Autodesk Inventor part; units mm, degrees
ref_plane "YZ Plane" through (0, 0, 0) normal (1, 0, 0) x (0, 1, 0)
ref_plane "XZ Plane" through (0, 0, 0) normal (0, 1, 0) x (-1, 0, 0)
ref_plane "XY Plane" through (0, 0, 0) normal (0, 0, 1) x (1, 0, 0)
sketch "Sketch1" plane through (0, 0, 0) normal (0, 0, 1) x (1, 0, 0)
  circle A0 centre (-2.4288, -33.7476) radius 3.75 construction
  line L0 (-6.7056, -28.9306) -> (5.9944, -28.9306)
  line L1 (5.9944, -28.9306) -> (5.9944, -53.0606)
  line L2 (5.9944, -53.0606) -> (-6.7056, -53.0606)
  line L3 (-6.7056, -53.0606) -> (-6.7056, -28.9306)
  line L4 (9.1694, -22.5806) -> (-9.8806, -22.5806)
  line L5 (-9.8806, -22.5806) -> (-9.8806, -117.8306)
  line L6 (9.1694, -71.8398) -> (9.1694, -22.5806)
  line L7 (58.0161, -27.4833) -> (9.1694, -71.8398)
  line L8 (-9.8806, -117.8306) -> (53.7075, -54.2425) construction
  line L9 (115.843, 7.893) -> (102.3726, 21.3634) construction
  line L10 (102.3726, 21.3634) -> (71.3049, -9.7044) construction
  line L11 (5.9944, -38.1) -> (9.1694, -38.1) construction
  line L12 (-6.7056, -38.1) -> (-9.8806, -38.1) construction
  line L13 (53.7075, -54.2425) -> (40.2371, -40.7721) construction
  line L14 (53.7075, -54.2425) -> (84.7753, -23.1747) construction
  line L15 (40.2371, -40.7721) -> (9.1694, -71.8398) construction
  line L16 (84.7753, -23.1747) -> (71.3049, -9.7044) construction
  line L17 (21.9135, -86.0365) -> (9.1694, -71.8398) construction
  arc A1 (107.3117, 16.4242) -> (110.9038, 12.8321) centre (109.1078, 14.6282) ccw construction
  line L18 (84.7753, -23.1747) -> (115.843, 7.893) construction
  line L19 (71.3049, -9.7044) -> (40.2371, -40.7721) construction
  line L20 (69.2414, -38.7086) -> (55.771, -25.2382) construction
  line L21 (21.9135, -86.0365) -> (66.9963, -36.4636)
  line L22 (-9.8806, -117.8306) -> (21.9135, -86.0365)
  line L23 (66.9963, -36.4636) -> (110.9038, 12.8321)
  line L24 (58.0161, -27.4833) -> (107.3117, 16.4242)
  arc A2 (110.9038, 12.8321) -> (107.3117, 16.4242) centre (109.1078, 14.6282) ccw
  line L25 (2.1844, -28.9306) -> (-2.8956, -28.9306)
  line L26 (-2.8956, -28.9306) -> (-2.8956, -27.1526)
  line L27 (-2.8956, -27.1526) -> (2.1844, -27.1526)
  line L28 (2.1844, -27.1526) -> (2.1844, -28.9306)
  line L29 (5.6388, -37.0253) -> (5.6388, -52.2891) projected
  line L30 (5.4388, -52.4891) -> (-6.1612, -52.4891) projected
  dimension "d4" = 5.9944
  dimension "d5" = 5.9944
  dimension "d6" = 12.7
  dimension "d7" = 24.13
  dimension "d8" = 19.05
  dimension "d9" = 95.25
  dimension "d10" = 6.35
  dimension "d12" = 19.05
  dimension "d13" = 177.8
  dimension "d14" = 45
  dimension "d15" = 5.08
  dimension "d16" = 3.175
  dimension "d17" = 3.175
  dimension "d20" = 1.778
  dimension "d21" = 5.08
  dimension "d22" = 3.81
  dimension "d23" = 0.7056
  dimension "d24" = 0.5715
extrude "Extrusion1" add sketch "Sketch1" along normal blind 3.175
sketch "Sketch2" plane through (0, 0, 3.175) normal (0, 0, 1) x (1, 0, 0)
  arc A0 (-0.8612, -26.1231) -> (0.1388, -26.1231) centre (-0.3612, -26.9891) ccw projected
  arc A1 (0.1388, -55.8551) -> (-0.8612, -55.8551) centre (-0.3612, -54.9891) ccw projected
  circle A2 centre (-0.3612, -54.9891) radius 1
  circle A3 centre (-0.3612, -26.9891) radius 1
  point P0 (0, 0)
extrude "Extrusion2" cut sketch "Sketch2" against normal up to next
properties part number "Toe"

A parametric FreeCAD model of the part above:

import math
import FreeCAD as App
import Part
import Sketcher

V = App.Vector
Q = App.Units.Quantity


def add_polygon(sketch, points):
    """Adds a closed chain of lines whose ends are joined by coincident constraints."""
    first, n = sketch.GeometryCount, len(points)
    for a, b in zip(points, points[1:] + points[:1]):
        sketch.addGeometry(Part.LineSegment(App.Vector(*a, 0), App.Vector(*b, 0)), False)
    for i in range(n):
        sketch.addConstraint(Sketcher.Constraint("Coincident", first + i, 2, first + (i + 1) % n, 1))

doc = App.newDocument("Part")
body = doc.addObject("PartDesign::Body", "Body")

sketch1 = body.newObject("Sketcher::SketchObject", "Sketch")
sketch1.AttachmentSupport = (doc.getObject("XY_Plane"), [""])
sketch1.MapMode = "FlatFace"
sketch1.addGeometry(Part.LineSegment(V(9.1694, -71.8398, 0), V(9.1694, -22.5806, 0)), False)
sketch1.addGeometry(Part.LineSegment(V(9.1694, -22.5806, 0), V(-9.8806, -22.5806, 0)), False)
sketch1.addGeometry(Part.LineSegment(V(-9.8806, -22.5806, 0), V(-9.8806, -117.8306, 0)), False)
sketch1.addGeometry(Part.LineSegment(V(-9.8806, -117.8306, 0), V(21.9135, -86.0365, 0)), False)
sketch1.addGeometry(Part.LineSegment(V(21.9135, -86.0365, 0), V(66.9963, -36.4636, 0)), False)
sketch1.addGeometry(Part.LineSegment(V(66.9963, -36.4636, 0), V(110.9038, 12.8321, 0)), False)
sketch1.addGeometry(Part.ArcOfCircle(Part.Circle(V(109.1078, 14.6282, 0), V(0, 0, 1), 2.539998), math.radians(-45.001595), math.radians(135.001595)), False)
sketch1.addGeometry(Part.LineSegment(V(107.3117, 16.4242, 0), V(58.0161, -27.4833, 0)), False)
sketch1.addGeometry(Part.LineSegment(V(58.0161, -27.4833, 0), V(9.1694, -71.8398, 0)), False)
add_polygon(sketch1, [(-6.7056, -53.0606), (-6.7056, -28.9306), (-2.8956, -28.9306), (-2.8956, -27.1526), (2.1844, -27.1526), (2.1844, -28.9306), (5.9944, -28.9306), (5.9944, -53.0606)])
sketch1.addConstraint(Sketcher.Constraint("Coincident", 0, 2, 1, 1))
sketch1.addConstraint(Sketcher.Constraint("Coincident", 1, 2, 2, 1))
sketch1.addConstraint(Sketcher.Constraint("Coincident", 2, 2, 3, 1))
sketch1.addConstraint(Sketcher.Constraint("Coincident", 3, 2, 4, 1))
sketch1.addConstraint(Sketcher.Constraint("Coincident", 4, 2, 5, 1))
sketch1.addConstraint(Sketcher.Constraint("Coincident", 5, 2, 6, 1))
sketch1.addConstraint(Sketcher.Constraint("Coincident", 6, 2, 7, 1))
sketch1.addConstraint(Sketcher.Constraint("Coincident", 7, 2, 8, 1))
sketch1.addConstraint(Sketcher.Constraint("Coincident", 8, 2, 0, 1))
sketch1.addConstraint(Sketcher.Constraint("Vertical", 0))
sketch1.addConstraint(Sketcher.Constraint("Horizontal", 1))
sketch1.addConstraint(Sketcher.Constraint("Vertical", 2))
sketch1.addConstraint(Sketcher.Constraint("Vertical", 9))
sketch1.addConstraint(Sketcher.Constraint("Horizontal", 10))
sketch1.addConstraint(Sketcher.Constraint("Vertical", 11))
sketch1.addConstraint(Sketcher.Constraint("Horizontal", 12))
sketch1.addConstraint(Sketcher.Constraint("Vertical", 13))
sketch1.addConstraint(Sketcher.Constraint("Horizontal", 14))
sketch1.addConstraint(Sketcher.Constraint("Vertical", 15))
sketch1.addConstraint(Sketcher.Constraint("Horizontal", 16))
sketch1.addConstraint(Sketcher.Constraint("Horizontal", 10, 2, 13, 2))
sketch1.addConstraint(Sketcher.Constraint("Equal", 10, 14))
sketch1.addConstraint(Sketcher.Constraint("Equal", 5, 7))
sketch1.addConstraint(Sketcher.Constraint("Radius", 6, Q("0.1 in")))
sketch1.addConstraint(Sketcher.Constraint("DistanceX", 12, 1, 12, 2, Q("0.2 in")))
sketch1.addConstraint(Sketcher.Constraint("DistanceX", 16, 2, 16, 1, Q("0.5 in")))
sketch1.addConstraint(Sketcher.Constraint("Angle", 3, Q("45 deg")))
sketch1.addConstraint(Sketcher.Constraint("DistanceX", 1, 2, 1, 1, Q("0.75 in")))
sketch1.addConstraint(Sketcher.Constraint("DistanceY", 2, 2, 2, 1, Q("3.75 in")))
sketch1.addConstraint(Sketcher.Constraint("DistanceY", 9, 1, 9, 2, Q("0.95 in")))
sketch1.addConstraint(Sketcher.Constraint("DistanceY", 11, 1, 11, 2, Q("0.07 in")))
sketch1.addConstraint(Sketcher.Constraint("DistanceY", 9, 2, 1, 2, Q("0.25 in")))
sketch1.addConstraint(Sketcher.Constraint("DistanceX", -1, 1, 14, 2, Q("0.236 in")))
sketch1.addConstraint(Sketcher.Constraint("DistanceX", 1, 2, 9, 2, Q("0.125 in")))
sketch1.addConstraint(Sketcher.Constraint("Distance", 5, Q("2.599 in")))
sketch1.addConstraint(Sketcher.Constraint("DistanceY", 0, 2, -1, 1, Q("0.889 in")))
sketch1.addConstraint(Sketcher.Constraint("DistanceY", 0, 1, 0, 2, 49.2592))
sketch1.addConstraint(Sketcher.Constraint("DistanceX", -1, 1, 5, 2, Q("4.3663 in")))
sketch1.addConstraint(Sketcher.Constraint("DistanceY", -1, 1, 5, 2, Q("0.5052 in")))
sketch1.addConstraint(Sketcher.Constraint("DistanceX", -1, 1, 7, 2, Q("2.2841 in")))
sketch1.addConstraint(Sketcher.Constraint("DistanceY", 4, 2, 6, 3, Q("2.0115 in")))
sketch1.addConstraint(Sketcher.Constraint("DistanceY", 3, 2, 4, 2, Q("1.9517 in")))
sketch1.addConstraint(Sketcher.Constraint("DistanceX", 6, 3, 5, 2, Q("0.0707 in")))
sketch1.addConstraint(Sketcher.Constraint("DistanceY", 6, 3, 6, 2, Q("0.0707 in")))
pad1 = body.newObject("PartDesign::Pad", "Pad")
pad1.Profile = sketch1
pad1.Length = Q("0.125 in")

sketch2 = body.newObject("Sketcher::SketchObject", "Sketch001")
sketch2.AttachmentSupport = (doc.getObject("XY_Plane"), [""])
sketch2.MapMode = "FlatFace"
sketch2.AttachmentOffset = App.Placement(V(0, 0, 0.125 * 25.4), App.Rotation())
sketch2.addGeometry(Part.Circle(V(-0.3612, -26.9891, 0), V(0, 0, 1), 0.999978), False)
sketch2.addGeometry(Part.Circle(V(-0.3612, -54.9891, 0), V(0, 0, 1), 0.999978), False)
sketch2.addConstraint(Sketcher.Constraint("Equal", 0, 1))
sketch2.addConstraint(Sketcher.Constraint("Vertical", 0, 3, 1, 3))
sketch2.addConstraint(Sketcher.Constraint("Diameter", 0, 2.0))
sketch2.addConstraint(Sketcher.Constraint("DistanceX", 0, 3, -1, 1, 0.3612))
sketch2.addConstraint(Sketcher.Constraint("DistanceY", 0, 3, -1, 1, 26.989))
sketch2.addConstraint(Sketcher.Constraint("DistanceY", 1, 3, -1, 1, 54.989))
pocket1 = body.newObject("PartDesign::Pocket", "Pocket")
pocket1.Profile = sketch2
pocket1.Length = Q("0.125 in")

doc.recompute()
